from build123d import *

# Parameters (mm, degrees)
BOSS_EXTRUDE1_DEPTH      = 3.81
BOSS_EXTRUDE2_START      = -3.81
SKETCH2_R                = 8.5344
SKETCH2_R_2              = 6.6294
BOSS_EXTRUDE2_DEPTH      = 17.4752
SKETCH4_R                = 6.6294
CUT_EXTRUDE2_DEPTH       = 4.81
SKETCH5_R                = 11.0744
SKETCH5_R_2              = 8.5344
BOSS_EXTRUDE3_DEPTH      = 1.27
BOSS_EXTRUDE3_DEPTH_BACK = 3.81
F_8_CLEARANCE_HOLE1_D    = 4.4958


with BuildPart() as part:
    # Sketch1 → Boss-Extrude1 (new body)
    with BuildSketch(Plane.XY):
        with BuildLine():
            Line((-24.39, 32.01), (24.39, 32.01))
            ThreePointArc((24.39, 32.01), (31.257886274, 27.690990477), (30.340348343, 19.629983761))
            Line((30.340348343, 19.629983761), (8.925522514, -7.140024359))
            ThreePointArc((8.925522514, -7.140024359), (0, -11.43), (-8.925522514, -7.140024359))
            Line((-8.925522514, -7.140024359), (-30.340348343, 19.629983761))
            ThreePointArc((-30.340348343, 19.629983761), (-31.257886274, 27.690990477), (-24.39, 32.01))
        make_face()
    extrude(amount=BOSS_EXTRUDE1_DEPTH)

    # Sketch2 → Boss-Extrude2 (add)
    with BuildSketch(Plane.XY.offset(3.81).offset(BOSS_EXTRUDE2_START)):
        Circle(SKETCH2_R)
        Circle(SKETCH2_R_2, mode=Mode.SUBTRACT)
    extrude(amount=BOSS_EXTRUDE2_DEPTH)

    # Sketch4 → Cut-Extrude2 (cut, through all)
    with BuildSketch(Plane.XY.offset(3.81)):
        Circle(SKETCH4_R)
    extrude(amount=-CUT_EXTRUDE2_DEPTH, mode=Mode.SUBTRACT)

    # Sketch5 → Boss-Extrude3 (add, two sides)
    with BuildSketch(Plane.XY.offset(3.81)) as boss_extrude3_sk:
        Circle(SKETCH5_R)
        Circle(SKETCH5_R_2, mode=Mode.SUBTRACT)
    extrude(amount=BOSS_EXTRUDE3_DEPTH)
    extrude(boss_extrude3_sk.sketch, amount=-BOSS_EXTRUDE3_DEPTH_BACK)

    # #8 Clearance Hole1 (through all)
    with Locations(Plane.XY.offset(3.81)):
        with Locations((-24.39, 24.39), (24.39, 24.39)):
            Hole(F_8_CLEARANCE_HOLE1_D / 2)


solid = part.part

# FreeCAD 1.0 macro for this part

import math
import FreeCAD as App
import Part
import Sketcher
from FreeCAD import Vector
Q = App.Units.Quantity

doc = App.newDocument("Part")
params = doc.addObject("Spreadsheet::Sheet", "Params")
for row, (alias, value) in enumerate([
    ("sketch1_radius", "0.3 in"),
    ("sketch1_radius2", "0.45 in"),
    ("pad1_length", "0.15 in"),
    ("sketch2_diameter", "0.672 in"),
    ("sketch2_diameter2", "0.522 in"),
    ("pad2_length", "0.688 in"),
    ("sketch3_diameter", "0.522 in"),
    ("sketch4_diameter", "0.872 in"),
    ("sketch4_diameter2", "0.672 in"),
    ("pad3_length", "0.05 in"),
    ("pad3_length2", "0.15 in"),
    ("sketch5_diameter", "0.177 in"),
    ("hole_diameter", "0.177 in"),
], start=1):
    params.set(f"A{row}", alias)
    params.set(f"B{row}", "=" + value)
    params.setAlias(f"B{row}", alias)

body = doc.addObject("PartDesign::Body", "Body")

sketch1 = doc.addObject("Sketcher::SketchObject", "Sketch")
body.addObject(sketch1)
sketch1.AttachmentSupport = (doc.XY_Plane, [""])
sketch1.MapMode = "FlatFace"
sketch1.addGeometry([
    Part.LineSegment(Vector(24, 32, 0), Vector(-24, 32, 0)),
    Part.ArcOfCircle(Part.Circle(Vector(-24, 24, 0), Vector(0, 0, 1), 8), math.radians(90), math.radians(219)),
    Part.LineSegment(Vector(-30, 20, 0), Vector(-9, -7, 0)),
    Part.ArcOfCircle(Part.Circle(Vector(0, 0, 0), Vector(0, 0, 1), 11), math.radians(-141), math.radians(-39)),
    Part.LineSegment(Vector(9, -7, 0), Vector(30, 20, 0)),
    Part.ArcOfCircle(Part.Circle(Vector(24, 24, 0), Vector(0, 0, 1), 8), math.radians(-39), math.radians(90)),
], False)
sketch1.addConstraint([
    Sketcher.Constraint("Tangent", 0, 2, 1, 1),
    Sketcher.Constraint("Tangent", 1, 2, 2, 1),
    Sketcher.Constraint("Tangent", 2, 2, 3, 1),
    Sketcher.Constraint("Tangent", 3, 2, 4, 1),
    Sketcher.Constraint("Tangent", 4, 2, 5, 1),
    Sketcher.Constraint("Tangent", 5, 2, 0, 1),
    Sketcher.Constraint("Horizontal", 0),
    Sketcher.Constraint("Coincident", 3, 3, -1, 1),
    Sketcher.Constraint("Equal", 1, 5),
    Sketcher.Constraint("Horizontal", 2, 2, 3, 2),
    Sketcher.Constraint("Radius", 1, Q("0.3 in")),
    Sketcher.Constraint("Radius", 3, Q("0.45 in")),
    Sketcher.Constraint("DistanceX", 0, 2, 0, 1, Q("48.78 mm")),
    Sketcher.Constraint("Distance", 2, Q("34.2816 mm")),
])
sketch1.setExpression("Constraints[10]", "Params.sketch1_radius")
sketch1.setExpression("Constraints[11]", "Params.sketch1_radius2")
pad1 = doc.addObject("PartDesign::Pad", "Pad")
body.addObject(pad1)
pad1.Profile = sketch1
pad1.setExpression("Length", "Params.pad1_length")

sketch2 = doc.addObject("Sketcher::SketchObject", "Sketch001")
body.addObject(sketch2)
sketch2.AttachmentSupport = (doc.XY_Plane, [""])
sketch2.MapMode = "FlatFace"
sketch2.addGeometry([
    Part.Circle(Vector(0, 0, 0), Vector(0, 0, 1), 9),
    Part.Circle(Vector(0, 0, 0), Vector(0, 0, 1), 7),
], False)
sketch2.addConstraint([
    Sketcher.Constraint("Coincident", 0, 3, -1, 1),
    Sketcher.Constraint("Coincident", 1, 3, -1, 1),
    Sketcher.Constraint("Diameter", 0, Q("0.672 in")),
    Sketcher.Constraint("Diameter", 1, Q("0.522 in")),
])
sketch2.setExpression("Constraints[2]", "Params.sketch2_diameter")
sketch2.setExpression("Constraints[3]", "Params.sketch2_diameter2")
pad2 = doc.addObject("PartDesign::Pad", "Pad001")
body.addObject(pad2)
pad2.Profile = sketch2
pad2.setExpression("Length", "Params.pad2_length")

sketch3 = doc.addObject("Sketcher::SketchObject", "Sketch002")
body.addObject(sketch3)
sketch3.AttachmentSupport = (doc.XY_Plane, [""])
sketch3.MapMode = "FlatFace"
sketch3.AttachmentOffset = App.Placement(Vector(0, 0, 0.15 * 25.4), App.Rotation())
sketch3.addGeometry(Part.Circle(Vector(0, 0, 0), Vector(0, 0, 1), 7), False)
sketch3.addConstraint([
    Sketcher.Constraint("Coincident", 0, 3, -1, 1),
    Sketcher.Constraint("Diameter", 0, Q("0.522 in")),
])
sketch3.setExpression("Constraints[1]", "Params.sketch3_diameter")
pocket1 = doc.addObject("PartDesign::Pocket", "Pocket")
body.addObject(pocket1)
pocket1.Profile = sketch3
pocket1.Type = "ThroughAll"

sketch4 = doc.addObject("Sketcher::SketchObject", "Sketch003")
body.addObject(sketch4)
sketch4.AttachmentSupport = (doc.XY_Plane, [""])
sketch4.MapMode = "FlatFace"
sketch4.AttachmentOffset = App.Placement(Vector(0, 0, 0.15 * 25.4), App.Rotation())
sketch4.addGeometry([
    Part.Circle(Vector(0, 0, 0), Vector(0, 0, 1), 11),
    Part.Circle(Vector(0, 0, 0), Vector(0, 0, 1), 9),
], False)
sketch4.addConstraint([
    Sketcher.Constraint("Coincident", 0, 3, -1, 1),
    Sketcher.Constraint("Coincident", 1, 3, -1, 1),
    Sketcher.Constraint("Diameter", 0, Q("0.872 in")),
    Sketcher.Constraint("Diameter", 1, Q("0.672 in")),
])
sketch4.setExpression("Constraints[2]", "Params.sketch4_diameter")
sketch4.setExpression("Constraints[3]", "Params.sketch4_diameter2")
pad3 = doc.addObject("PartDesign::Pad", "Pad002")
body.addObject(pad3)
pad3.Profile = sketch4
pad3.Type = "TwoLengths"
pad3.setExpression("Length", "Params.pad3_length")
pad3.setExpression("Length2", "Params.pad3_length2")

sketch5 = doc.addObject("Sketcher::SketchObject", "Sketch004")
body.addObject(sketch5)
sketch5.AttachmentSupport = (doc.XY_Plane, [""])
sketch5.MapMode = "FlatFace"
sketch5.AttachmentOffset = App.Placement(Vector(0, 0, 0.15 * 25.4), App.Rotation())
sketch5.addGeometry([
    Part.Circle(Vector(-24.4, 24.4, 0), Vector(0, 0, 1), 2.2),
    Part.Circle(Vector(24.4, 24.4, 0), Vector(0, 0, 1), 2.2),
], False)
sketch5.addConstraint([
    Sketcher.Constraint("Equal", 0, 1),
    Sketcher.Constraint("Symmetric", 0, 3, 1, 3, -2),
    Sketcher.Constraint("Diameter", 0, Q("0.177 in")),
    Sketcher.Constraint("DistanceX", 0, 3, -1, 1, Q("24.39 mm")),
    Sketcher.Constraint("DistanceY", -1, 1, 0, 3, Q("24.39 mm")),
])
sketch5.setExpression("Constraints[2]", "Params.sketch5_diameter")
doc.recompute()
hole = doc.addObject("PartDesign::Hole", "Hole")
body.addObject(hole)
hole.Profile = sketch5
hole.ThreadType = "None"
hole.setExpression("Diameter", "Params.hole_diameter")
hole.DepthType = "ThroughAll"

doc.recompute()
